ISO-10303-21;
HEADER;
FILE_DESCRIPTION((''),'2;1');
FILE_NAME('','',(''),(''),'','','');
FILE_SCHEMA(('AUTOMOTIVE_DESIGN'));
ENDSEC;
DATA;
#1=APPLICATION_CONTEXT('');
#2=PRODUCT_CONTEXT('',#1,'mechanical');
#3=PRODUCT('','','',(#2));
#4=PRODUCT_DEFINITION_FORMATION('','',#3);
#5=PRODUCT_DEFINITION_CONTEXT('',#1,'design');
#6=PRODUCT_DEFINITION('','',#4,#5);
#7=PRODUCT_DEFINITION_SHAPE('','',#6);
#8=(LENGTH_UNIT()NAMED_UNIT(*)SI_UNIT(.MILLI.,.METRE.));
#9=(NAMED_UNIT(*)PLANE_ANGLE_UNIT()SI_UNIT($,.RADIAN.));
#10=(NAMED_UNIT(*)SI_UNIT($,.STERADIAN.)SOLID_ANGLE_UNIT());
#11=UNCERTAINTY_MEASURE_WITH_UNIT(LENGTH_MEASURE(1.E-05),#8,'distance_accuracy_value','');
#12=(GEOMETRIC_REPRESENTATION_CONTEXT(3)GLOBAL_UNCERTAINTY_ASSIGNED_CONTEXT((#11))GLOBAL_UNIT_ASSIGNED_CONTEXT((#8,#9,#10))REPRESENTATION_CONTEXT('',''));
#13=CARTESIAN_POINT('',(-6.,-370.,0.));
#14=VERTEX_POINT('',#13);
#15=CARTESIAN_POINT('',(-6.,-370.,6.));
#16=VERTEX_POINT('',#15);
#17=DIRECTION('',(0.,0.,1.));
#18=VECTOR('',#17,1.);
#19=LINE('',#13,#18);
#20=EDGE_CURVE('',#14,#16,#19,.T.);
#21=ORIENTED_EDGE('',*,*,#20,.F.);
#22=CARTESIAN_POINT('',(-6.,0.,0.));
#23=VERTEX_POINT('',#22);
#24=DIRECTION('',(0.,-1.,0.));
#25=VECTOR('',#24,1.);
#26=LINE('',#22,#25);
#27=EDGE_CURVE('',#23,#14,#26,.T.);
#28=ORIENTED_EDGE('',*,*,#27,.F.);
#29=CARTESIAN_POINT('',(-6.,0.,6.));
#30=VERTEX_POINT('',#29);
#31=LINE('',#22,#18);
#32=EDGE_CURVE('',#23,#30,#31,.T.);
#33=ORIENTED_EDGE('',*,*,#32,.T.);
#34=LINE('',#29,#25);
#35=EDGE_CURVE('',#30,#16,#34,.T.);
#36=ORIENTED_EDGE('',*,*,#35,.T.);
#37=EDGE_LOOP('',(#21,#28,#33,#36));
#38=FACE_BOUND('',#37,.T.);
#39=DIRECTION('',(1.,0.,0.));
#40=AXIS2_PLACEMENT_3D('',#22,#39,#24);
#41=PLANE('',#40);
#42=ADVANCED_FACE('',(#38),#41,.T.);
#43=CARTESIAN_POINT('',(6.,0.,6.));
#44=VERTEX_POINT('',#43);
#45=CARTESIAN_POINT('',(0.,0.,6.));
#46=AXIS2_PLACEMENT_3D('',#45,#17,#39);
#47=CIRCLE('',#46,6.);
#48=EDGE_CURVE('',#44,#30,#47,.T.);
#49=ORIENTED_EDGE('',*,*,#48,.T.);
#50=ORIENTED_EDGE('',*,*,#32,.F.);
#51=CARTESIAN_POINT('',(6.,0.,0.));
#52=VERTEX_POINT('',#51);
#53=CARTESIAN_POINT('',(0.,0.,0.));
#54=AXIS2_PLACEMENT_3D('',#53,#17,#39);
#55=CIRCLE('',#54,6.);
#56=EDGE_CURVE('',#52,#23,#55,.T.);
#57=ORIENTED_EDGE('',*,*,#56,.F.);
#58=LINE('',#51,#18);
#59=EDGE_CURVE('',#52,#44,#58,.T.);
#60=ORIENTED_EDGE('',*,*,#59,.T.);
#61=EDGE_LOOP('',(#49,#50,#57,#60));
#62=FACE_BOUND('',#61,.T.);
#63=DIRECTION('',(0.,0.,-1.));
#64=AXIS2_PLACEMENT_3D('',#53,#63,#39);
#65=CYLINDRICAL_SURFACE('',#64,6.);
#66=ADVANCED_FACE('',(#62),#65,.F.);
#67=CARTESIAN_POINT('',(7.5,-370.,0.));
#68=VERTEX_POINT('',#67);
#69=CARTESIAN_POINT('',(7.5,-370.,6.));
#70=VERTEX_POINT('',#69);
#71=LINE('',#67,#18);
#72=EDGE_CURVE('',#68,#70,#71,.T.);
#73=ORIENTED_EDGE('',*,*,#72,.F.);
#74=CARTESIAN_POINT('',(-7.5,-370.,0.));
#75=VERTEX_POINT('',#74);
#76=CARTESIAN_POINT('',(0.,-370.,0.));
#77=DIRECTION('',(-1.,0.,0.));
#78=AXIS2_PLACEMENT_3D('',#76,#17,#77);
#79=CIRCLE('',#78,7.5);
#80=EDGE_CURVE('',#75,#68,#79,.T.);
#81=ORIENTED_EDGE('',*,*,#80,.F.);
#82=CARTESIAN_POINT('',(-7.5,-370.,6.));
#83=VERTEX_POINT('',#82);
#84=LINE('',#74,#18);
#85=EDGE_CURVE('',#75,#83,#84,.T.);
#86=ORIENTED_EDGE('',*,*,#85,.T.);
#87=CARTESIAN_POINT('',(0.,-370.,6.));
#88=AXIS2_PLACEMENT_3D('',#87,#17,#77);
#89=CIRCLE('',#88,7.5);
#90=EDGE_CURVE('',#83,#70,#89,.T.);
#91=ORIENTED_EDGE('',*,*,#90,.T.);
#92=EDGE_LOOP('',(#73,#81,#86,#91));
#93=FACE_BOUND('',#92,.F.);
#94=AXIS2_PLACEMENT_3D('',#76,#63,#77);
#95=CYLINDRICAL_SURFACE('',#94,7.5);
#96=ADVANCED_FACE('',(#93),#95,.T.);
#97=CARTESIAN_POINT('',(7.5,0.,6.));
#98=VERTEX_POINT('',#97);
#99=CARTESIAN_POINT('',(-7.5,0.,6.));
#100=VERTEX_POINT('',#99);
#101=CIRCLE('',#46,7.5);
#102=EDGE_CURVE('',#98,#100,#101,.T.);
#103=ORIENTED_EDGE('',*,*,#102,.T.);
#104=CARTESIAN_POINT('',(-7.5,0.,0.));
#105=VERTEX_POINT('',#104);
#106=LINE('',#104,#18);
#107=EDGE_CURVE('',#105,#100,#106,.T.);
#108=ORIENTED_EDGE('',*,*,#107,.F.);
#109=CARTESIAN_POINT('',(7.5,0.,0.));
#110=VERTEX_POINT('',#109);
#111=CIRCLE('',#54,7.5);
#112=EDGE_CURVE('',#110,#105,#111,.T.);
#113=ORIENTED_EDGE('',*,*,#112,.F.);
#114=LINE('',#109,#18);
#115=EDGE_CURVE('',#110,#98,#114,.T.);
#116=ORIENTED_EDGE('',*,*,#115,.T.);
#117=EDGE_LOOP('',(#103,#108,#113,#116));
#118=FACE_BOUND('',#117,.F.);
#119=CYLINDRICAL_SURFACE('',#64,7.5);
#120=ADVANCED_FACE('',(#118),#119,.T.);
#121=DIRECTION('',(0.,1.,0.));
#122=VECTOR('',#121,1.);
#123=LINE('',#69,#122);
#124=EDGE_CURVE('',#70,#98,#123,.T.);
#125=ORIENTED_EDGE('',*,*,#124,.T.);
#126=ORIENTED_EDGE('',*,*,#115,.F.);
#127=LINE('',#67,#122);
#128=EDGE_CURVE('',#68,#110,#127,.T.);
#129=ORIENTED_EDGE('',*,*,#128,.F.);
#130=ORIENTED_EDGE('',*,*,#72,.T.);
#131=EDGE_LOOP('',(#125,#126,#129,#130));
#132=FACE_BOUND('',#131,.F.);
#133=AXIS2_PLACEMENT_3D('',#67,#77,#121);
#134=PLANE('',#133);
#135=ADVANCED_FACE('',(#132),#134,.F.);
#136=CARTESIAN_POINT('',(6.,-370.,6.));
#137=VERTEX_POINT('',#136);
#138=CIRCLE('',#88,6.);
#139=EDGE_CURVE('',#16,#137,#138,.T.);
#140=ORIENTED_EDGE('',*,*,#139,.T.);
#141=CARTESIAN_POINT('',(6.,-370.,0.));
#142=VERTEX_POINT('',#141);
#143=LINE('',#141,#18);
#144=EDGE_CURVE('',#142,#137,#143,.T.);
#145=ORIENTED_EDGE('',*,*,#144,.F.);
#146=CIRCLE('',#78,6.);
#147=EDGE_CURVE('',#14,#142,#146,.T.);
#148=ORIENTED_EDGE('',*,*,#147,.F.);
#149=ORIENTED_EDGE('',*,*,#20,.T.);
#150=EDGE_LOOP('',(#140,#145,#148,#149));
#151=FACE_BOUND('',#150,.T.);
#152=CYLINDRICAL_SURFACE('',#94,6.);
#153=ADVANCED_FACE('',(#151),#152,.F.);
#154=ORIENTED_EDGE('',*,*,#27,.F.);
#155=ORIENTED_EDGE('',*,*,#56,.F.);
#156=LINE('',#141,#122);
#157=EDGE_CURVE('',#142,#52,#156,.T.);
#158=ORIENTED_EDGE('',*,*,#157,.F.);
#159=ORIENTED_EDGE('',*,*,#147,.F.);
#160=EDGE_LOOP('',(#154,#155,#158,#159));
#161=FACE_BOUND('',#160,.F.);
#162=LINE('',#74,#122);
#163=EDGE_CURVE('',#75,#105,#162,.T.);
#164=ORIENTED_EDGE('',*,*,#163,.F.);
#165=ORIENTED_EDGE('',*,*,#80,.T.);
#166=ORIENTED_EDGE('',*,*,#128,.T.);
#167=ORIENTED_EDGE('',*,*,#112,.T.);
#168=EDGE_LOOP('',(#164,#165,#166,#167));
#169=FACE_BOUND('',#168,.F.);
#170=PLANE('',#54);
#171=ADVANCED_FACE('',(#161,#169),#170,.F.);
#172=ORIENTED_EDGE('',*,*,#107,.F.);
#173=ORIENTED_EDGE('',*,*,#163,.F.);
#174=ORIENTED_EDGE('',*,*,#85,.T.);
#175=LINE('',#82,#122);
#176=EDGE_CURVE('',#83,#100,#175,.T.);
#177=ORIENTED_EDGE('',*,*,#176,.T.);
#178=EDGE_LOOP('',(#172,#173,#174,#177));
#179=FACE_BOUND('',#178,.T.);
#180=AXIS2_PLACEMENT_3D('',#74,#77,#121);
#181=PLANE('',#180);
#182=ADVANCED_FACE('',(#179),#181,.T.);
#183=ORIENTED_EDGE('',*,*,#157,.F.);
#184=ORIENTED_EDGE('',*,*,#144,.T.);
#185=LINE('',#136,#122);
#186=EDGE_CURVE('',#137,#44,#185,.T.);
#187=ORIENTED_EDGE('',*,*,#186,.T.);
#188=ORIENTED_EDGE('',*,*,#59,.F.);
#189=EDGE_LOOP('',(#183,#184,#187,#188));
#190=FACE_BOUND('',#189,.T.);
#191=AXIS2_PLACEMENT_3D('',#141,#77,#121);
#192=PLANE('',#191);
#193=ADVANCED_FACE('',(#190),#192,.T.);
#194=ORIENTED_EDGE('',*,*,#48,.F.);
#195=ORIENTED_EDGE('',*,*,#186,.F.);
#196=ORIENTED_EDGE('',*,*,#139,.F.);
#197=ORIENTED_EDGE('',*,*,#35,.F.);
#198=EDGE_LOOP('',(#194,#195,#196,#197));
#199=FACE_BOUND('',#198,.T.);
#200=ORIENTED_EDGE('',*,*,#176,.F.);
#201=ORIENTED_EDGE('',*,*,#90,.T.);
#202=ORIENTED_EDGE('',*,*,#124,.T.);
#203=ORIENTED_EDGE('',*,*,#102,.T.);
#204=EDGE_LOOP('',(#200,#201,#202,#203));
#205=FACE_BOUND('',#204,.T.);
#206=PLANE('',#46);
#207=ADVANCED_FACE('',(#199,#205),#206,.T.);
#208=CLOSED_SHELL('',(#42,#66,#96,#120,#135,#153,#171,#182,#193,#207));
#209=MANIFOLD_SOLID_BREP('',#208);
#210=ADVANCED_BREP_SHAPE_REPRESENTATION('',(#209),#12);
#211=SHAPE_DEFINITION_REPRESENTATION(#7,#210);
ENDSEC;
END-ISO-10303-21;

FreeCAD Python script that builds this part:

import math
import FreeCAD as App
import Part
import Sketcher

V = App.Vector

doc = App.newDocument("Part")
body = doc.addObject("PartDesign::Body", "Body")

# Sketch on XY plane
sketch1 = body.newObject("Sketcher::SketchObject", "Sketch")
sketch1.AttachmentSupport = (doc.getObject("XY_Plane"), [""])
sketch1.MapMode = "FlatFace"
sketch1.addGeometry([
    Part.LineSegment(V(8, -370, 0), V(8, 0, 0)),  # 0
    Part.ArcOfCircle(Part.Circle(V(0, 0, 0), V(0, 0, 1), 8), math.radians(0), math.radians(180)),  # 1
    Part.LineSegment(V(-8, 0, 0), V(-8, -370, 0)),  # 2
    Part.ArcOfCircle(Part.Circle(V(0, -370, 0), V(0, 0, 1), 8), math.radians(180), math.radians(360)),  # 3
    Part.ArcOfCircle(Part.Circle(V(0, 0, 0), V(0, 0, 1), 6), math.radians(0), math.radians(180)),  # 4
    Part.LineSegment(V(6, 0, 0), V(6, -370, 0)),  # 5
    Part.ArcOfCircle(Part.Circle(V(0, -370, 0), V(0, 0, 1), 6), math.radians(180), math.radians(360)),  # 6
    Part.LineSegment(V(-6, -370, 0), V(-6, 0, 0)),  # 7
], False)
sketch1.addConstraint([
    Sketcher.Constraint("Tangent", 0, 2, 1, 1),
    Sketcher.Constraint("Tangent", 1, 2, 2, 1),
    Sketcher.Constraint("Tangent", 2, 2, 3, 1),
    Sketcher.Constraint("Tangent", 3, 2, 0, 1),
    Sketcher.Constraint("Tangent", 4, 1, 5, 1),
    Sketcher.Constraint("Tangent", 5, 2, 6, 2),
    Sketcher.Constraint("Tangent", 6, 1, 7, 1),
    Sketcher.Constraint("Tangent", 7, 2, 4, 2),
    Sketcher.Constraint("Vertical", 0),
    Sketcher.Constraint("Vertical", 2),
    Sketcher.Constraint("Vertical", 5),
    Sketcher.Constraint("Vertical", 7),
    Sketcher.Constraint("Coincident", 1, 3, -1, 1),
    Sketcher.Constraint("Coincident", 4, 3, -1, 1),
    Sketcher.Constraint("Horizontal", 6, 3, 2, 2),
    Sketcher.Constraint("Radius", 4, 6.0),
    Sketcher.Constraint("Radius", 1, 7.5),
    Sketcher.Constraint("DistanceY", 0, 1, 0, 2, 370.0),
])
pad1 = body.newObject("PartDesign::Pad", "Pad")
pad1.Profile = sketch1
pad1.Length = 6

doc.recompute()
